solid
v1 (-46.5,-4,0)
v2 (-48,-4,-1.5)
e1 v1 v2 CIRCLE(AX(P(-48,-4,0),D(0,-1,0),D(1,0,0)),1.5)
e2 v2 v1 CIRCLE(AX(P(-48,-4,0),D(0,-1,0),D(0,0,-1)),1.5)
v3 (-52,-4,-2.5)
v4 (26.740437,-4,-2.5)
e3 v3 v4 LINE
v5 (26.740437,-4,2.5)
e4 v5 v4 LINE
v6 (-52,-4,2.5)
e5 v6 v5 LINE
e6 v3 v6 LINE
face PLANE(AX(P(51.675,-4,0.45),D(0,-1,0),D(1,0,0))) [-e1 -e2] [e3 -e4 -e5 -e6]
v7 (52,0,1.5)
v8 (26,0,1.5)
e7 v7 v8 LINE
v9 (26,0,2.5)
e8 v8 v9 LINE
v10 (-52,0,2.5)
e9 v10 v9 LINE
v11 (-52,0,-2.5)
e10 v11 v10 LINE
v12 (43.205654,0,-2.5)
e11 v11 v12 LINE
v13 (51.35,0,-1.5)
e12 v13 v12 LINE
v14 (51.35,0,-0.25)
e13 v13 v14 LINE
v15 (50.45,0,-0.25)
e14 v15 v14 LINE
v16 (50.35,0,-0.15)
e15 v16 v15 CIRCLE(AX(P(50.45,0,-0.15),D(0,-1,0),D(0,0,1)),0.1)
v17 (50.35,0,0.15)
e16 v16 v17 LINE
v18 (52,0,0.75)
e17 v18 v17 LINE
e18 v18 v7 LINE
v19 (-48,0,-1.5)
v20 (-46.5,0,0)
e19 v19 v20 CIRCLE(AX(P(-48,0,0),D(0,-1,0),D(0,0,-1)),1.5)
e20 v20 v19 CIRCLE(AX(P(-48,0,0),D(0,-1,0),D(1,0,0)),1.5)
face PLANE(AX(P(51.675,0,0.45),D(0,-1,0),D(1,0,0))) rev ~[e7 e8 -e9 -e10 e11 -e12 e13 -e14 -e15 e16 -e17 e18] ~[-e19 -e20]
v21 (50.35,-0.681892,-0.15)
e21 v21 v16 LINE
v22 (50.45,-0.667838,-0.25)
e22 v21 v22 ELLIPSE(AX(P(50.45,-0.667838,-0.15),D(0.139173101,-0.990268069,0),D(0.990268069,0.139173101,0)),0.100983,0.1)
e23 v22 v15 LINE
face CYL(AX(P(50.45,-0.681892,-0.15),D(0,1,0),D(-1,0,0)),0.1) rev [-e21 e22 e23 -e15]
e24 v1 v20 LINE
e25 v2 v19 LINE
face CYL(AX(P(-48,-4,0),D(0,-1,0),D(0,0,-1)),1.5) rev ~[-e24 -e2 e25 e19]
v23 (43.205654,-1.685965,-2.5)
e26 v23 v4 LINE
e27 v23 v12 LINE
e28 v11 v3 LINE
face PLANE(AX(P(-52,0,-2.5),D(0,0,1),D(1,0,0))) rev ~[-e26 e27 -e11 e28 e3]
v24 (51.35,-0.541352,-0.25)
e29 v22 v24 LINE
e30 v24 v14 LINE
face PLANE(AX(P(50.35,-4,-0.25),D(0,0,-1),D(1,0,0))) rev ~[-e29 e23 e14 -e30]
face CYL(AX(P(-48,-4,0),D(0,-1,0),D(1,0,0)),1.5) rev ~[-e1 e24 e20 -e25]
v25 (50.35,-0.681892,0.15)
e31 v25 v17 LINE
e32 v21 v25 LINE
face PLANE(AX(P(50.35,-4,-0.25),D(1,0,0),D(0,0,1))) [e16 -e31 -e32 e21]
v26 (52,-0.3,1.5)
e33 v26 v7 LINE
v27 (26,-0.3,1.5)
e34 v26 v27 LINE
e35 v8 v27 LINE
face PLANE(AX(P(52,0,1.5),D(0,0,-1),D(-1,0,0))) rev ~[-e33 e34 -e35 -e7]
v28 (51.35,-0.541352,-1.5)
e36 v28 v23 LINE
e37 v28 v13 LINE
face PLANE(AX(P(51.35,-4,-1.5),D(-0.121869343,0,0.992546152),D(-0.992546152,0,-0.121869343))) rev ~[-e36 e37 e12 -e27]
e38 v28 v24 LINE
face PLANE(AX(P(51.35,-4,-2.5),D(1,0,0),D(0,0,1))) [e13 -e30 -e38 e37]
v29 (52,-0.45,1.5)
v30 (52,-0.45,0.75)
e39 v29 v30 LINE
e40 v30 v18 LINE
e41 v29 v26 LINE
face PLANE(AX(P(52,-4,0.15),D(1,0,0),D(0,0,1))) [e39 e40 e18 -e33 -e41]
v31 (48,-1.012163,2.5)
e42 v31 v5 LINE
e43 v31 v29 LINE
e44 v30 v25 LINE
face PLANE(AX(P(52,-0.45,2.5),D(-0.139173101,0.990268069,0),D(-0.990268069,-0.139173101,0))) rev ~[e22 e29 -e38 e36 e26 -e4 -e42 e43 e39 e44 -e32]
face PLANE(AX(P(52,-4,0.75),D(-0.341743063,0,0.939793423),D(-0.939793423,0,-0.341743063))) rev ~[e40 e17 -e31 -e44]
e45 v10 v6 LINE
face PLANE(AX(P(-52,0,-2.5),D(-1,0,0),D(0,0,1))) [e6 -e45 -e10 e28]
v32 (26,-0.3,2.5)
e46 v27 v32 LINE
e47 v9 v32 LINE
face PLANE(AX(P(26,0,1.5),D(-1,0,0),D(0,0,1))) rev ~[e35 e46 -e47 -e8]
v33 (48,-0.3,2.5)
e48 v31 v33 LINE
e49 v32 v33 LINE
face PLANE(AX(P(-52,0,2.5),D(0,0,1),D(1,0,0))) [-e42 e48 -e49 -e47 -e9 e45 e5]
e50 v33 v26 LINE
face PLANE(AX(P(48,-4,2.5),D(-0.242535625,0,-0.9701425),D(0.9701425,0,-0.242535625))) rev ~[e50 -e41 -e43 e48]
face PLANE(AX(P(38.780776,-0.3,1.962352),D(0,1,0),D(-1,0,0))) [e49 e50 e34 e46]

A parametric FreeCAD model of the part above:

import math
import FreeCAD as App
import Part
import Sketcher
from FreeCAD import Vector
Q = App.Units.Quantity


def edges_at(feature, points):
    """Names of the edges that pass closest to the given points."""
    edges = feature.Shape.Edges
    near = lambda p: min(range(len(edges)), key=lambda i: edges[i].distToShape(Part.Vertex(*p))[0])
    return sorted({f"Edge{near(p) + 1}" for p in points})


def add_polygon(sketch, points):
    """Adds a closed chain of lines whose ends are joined by coincident constraints."""
    first, n = sketch.GeometryCount, len(points)
    for a, b in zip(points, points[1:] + points[:1]):
        sketch.addGeometry(Part.LineSegment(App.Vector(*a, 0), App.Vector(*b, 0)), False)
    for i in range(n):
        sketch.addConstraint(Sketcher.Constraint("Coincident", first + i, 2, first + (i + 1) % n, 1))

doc = App.newDocument("Part")
body = doc.addObject("PartDesign::Body", "Body")

sketch1 = doc.addObject("Sketcher::SketchObject", "Sketch")
body.addObject(sketch1)
sketch1.AttachmentSupport = (doc.XZ_Plane, [""])
sketch1.MapMode = "FlatFace"
add_polygon(sketch1, [(-52, 2), (-52, -2), (52, -2), (52, 2)])
sketch1.addConstraint(Sketcher.Constraint("Vertical", 0))
sketch1.addConstraint(Sketcher.Constraint("Horizontal", 1))
sketch1.addConstraint(Sketcher.Constraint("Vertical", 2))
sketch1.addConstraint(Sketcher.Constraint("Horizontal", 3))
sketch1.addConstraint(Sketcher.Constraint("Symmetric", 0, 2, 2, 2, -1, 1))
sketch1.addConstraint(Sketcher.Constraint("DistanceX", 1, 1, 1, 2, Q("104 mm")))
sketch1.addConstraint(Sketcher.Constraint("DistanceY", 0, 2, 0, 1, Q("5 mm")))
pad1 = doc.addObject("PartDesign::Pad", "Pad")
body.addObject(pad1)
pad1.Profile = sketch1
pad1.Length = 4

sketch2 = doc.addObject("Sketcher::SketchObject", "Sketch001")
body.addObject(sketch2)
sketch2.AttachmentSupport = (doc.XZ_Plane, [""])
sketch2.MapMode = "FlatFace"
sketch2.AttachmentOffset = App.Placement(Vector(0, 0, 4), App.Rotation())
sketch2.addGeometry(Part.ArcOfCircle(Part.Circle(Vector(-48, 0, 0), Vector(0, 0, 1), 1.5), math.radians(-90), math.radians(0)), False)
sketch2.addGeometry(Part.ArcOfCircle(Part.Circle(Vector(-48, 0, 0), Vector(0, 0, 1), 1.5), math.radians(0), math.radians(270)), False)
sketch2.addConstraint(Sketcher.Constraint("Tangent", 0, 1, 1, 2))
sketch2.addConstraint(Sketcher.Constraint("Coincident", 1, 1, 0, 2))
sketch2.addConstraint(Sketcher.Constraint("PointOnObject", 0, 3, -1))
sketch2.addConstraint(Sketcher.Constraint("PointOnObject", 1, 1, -1))
sketch2.addConstraint(Sketcher.Constraint("Vertical", 1, 3, 0, 1))
sketch2.addConstraint(Sketcher.Constraint("Radius", 0, Q("1.5 mm")))
sketch2.addConstraint(Sketcher.Constraint("DistanceX", 0, 3, -1, 1, Q("48 mm")))
pocket1 = doc.addObject("PartDesign::Pocket", "Pocket")
body.addObject(pocket1)
pocket1.Profile = sketch2
pocket1.Type = "ThroughAll"

sketch3 = doc.addObject("Sketcher::SketchObject", "Sketch002")
body.addObject(sketch3)
sketch3.AttachmentSupport = (doc.XZ_Plane, [""])
sketch3.MapMode = "FlatFace"
sketch3.AttachmentOffset = App.Placement(Vector(0, 0, 4), App.Rotation())
add_polygon(sketch3, [(51.4, 0.8), (51.4, -2.5), (52, -2.5), (52, 0.8)])
sketch3.addConstraint(Sketcher.Constraint("Vertical", 0))
sketch3.addConstraint(Sketcher.Constraint("Horizontal", 1))
sketch3.addConstraint(Sketcher.Constraint("Vertical", 2))
sketch3.addConstraint(Sketcher.Constraint("Horizontal", 3))
sketch3.addConstraint(Sketcher.Constraint("DistanceX", -1, 1, 1, 2, Q("52 mm")))
sketch3.addConstraint(Sketcher.Constraint("DistanceX", 1, 1, 1, 2, Q("0.65 mm")))
sketch3.addConstraint(Sketcher.Constraint("DistanceY", 0, 2, 0, 1, Q("3.25 mm")))
sketch3.addConstraint(Sketcher.Constraint("DistanceY", 0, 2, -1, 1, Q("2.5 mm")))
pocket2 = doc.addObject("PartDesign::Pocket", "Pocket001")
body.addObject(pocket2)
pocket2.Profile = sketch3
pocket2.Type = "ThroughAll"

sketch4 = doc.addObject("Sketcher::SketchObject", "Sketch003")
body.addObject(sketch4)
sketch4.AttachmentSupport = (doc.XZ_Plane, [""])
sketch4.MapMode = "FlatFace"
sketch4.AttachmentOffset = App.Placement(Vector(0, 0, 4), App.Rotation())
add_polygon(sketch4, [(43.2, -2.5), (51.4, -2.5), (51.4, -1.5)])
sketch4.addConstraint(Sketcher.Constraint("Horizontal", 0))
sketch4.addConstraint(Sketcher.Constraint("Vertical", 1))
sketch4.addConstraint(Sketcher.Constraint("DistanceY", 1, 1, 1, 2, Q("1 mm")))
sketch4.addConstraint(Sketcher.Constraint("Angle", 2, Q("-173 deg")))
sketch4.addConstraint(Sketcher.Constraint("DistanceY", 0, 2, -1, 1, Q("2.5 mm")))
sketch4.addConstraint(Sketcher.Constraint("DistanceX", -1, 1, 0, 2, Q("51.35 mm")))
pocket3 = doc.addObject("PartDesign::Pocket", "Pocket002")
body.addObject(pocket3)
pocket3.Profile = sketch4
pocket3.Type = "ThroughAll"

sketch5 = doc.addObject("Sketcher::SketchObject", "Sketch004")
body.addObject(sketch5)
sketch5.AttachmentSupport = (doc.XZ_Plane, [""])
sketch5.MapMode = "FlatFace"
sketch5.AttachmentOffset = App.Placement(Vector(0, 0, 4), App.Rotation())
add_polygon(sketch5, [(50.35, 0.15), (50.35, -0.25), (51.35, -0.25), (51.35, 0.15)])
sketch5.addConstraint(Sketcher.Constraint("Vertical", 0))
sketch5.addConstraint(Sketcher.Constraint("Horizontal", 1))
sketch5.addConstraint(Sketcher.Constraint("Vertical", 2))
sketch5.addConstraint(Sketcher.Constraint("Horizontal", 3))
sketch5.addConstraint(Sketcher.Constraint("DistanceX", 1, 1, 1, 2, Q("1 mm")))
sketch5.addConstraint(Sketcher.Constraint("DistanceY", 0, 2, 0, 1, Q("0.4 mm")))
sketch5.addConstraint(Sketcher.Constraint("DistanceX", -1, 1, 0, 2, Q("50.35 mm")))
sketch5.addConstraint(Sketcher.Constraint("DistanceY", 0, 2, -1, 1, Q("0.25 mm")))
pocket4 = doc.addObject("PartDesign::Pocket", "Pocket003")
body.addObject(pocket4)
pocket4.Profile = sketch5
pocket4.Type = "ThroughAll"

sketch6 = doc.addObject("Sketcher::SketchObject", "Sketch005")
body.addObject(sketch6)
sketch6.AttachmentSupport = (doc.XZ_Plane, [""])
sketch6.MapMode = "FlatFace"
sketch6.AttachmentOffset = App.Placement(Vector(0, 0, 4), App.Rotation())
add_polygon(sketch6, [(51.4, 0.8), (51.4, 0.1), (52, 0.1), (52, 0.8)])
sketch6.addConstraint(Sketcher.Constraint("Vertical", 0))
sketch6.addConstraint(Sketcher.Constraint("Horizontal", 1))
sketch6.addConstraint(Sketcher.Constraint("Vertical", 2))
sketch6.addConstraint(Sketcher.Constraint("Horizontal", 3))
sketch6.addConstraint(Sketcher.Constraint("DistanceY", 0, 2, 0, 1, Q("0.6 mm")))
sketch6.addConstraint(Sketcher.Constraint("DistanceX", -1, 1, 1, 2, Q("52 mm")))
sketch6.addConstraint(Sketcher.Constraint("DistanceX", 1, 1, 1, 2, Q("0.65 mm")))
sketch6.addConstraint(Sketcher.Constraint("DistanceY", -1, 1, 0, 2, Q("0.15 mm")))
pad2 = doc.addObject("PartDesign::Pad", "Pad001")
body.addObject(pad2)
pad2.Profile = sketch6
pad2.Length = 4
pad2.Reversed = True

sketch7 = doc.addObject("Sketcher::SketchObject", "Sketch006")
body.addObject(sketch7)
sketch7.AttachmentSupport = (doc.XZ_Plane, [""])
sketch7.MapMode = "FlatFace"
sketch7.AttachmentOffset = App.Placement(Vector(0, 0, 4), App.Rotation())
add_polygon(sketch7, [(52, 0.1), (52, 0.8), (50.4, 0.1)])
sketch7.addConstraint(Sketcher.Constraint("Vertical", 0))
sketch7.addConstraint(Sketcher.Constraint("Horizontal", 2))
sketch7.addConstraint(Sketcher.Constraint("DistanceY", 0, 1, 0, 2, Q("0.6 mm")))
sketch7.addConstraint(Sketcher.Constraint("DistanceX", -1, 1, 0, 2, Q("52 mm")))
sketch7.addConstraint(Sketcher.Constraint("DistanceX", 2, 1, 2, 2, Q("1.65 mm")))
sketch7.addConstraint(Sketcher.Constraint("DistanceY", -1, 1, 0, 2, Q("0.75 mm")))
pocket5 = doc.addObject("PartDesign::Pocket", "Pocket004")
body.addObject(pocket5)
pocket5.Profile = sketch7
pocket5.Type = "ThroughAll"

sketch8 = doc.addObject("Sketcher::SketchObject", "Sketch007")
body.addObject(sketch8)
sketch8.AttachmentSupport = (doc.XZ_Plane, [""])
sketch8.MapMode = "FlatFace"
sketch8.AttachmentOffset = App.Placement(Vector(0, 0, 4), App.Rotation())
add_polygon(sketch8, [(52, 1.5), (52, 2.5), (48, 2.5)])
sketch8.addConstraint(Sketcher.Constraint("Vertical", 0))
sketch8.addConstraint(Sketcher.Constraint("Horizontal", 1))
sketch8.addConstraint(Sketcher.Constraint("DistanceX", 1, 2, 1, 1, Q("4 mm")))
sketch8.addConstraint(Sketcher.Constraint("DistanceY", 0, 1, 0, 2, Q("1 mm")))
sketch8.addConstraint(Sketcher.Constraint("DistanceX", -1, 1, 0, 2, Q("52 mm")))
sketch8.addConstraint(Sketcher.Constraint("DistanceY", -1, 1, 0, 2, Q("2.5 mm")))
pocket6 = doc.addObject("PartDesign::Pocket", "Pocket005")
body.addObject(pocket6)
pocket6.Profile = sketch8
pocket6.Type = "ThroughAll"

sketch9 = doc.addObject("Sketcher::SketchObject", "Sketch008")
body.addObject(sketch9)
sketch9.AttachmentSupport = (doc.XY_Plane, [""])
sketch9.MapMode = "FlatFace"
sketch9.AttachmentOffset = App.Placement(Vector(0, 0, 2.5), App.Rotation())
add_polygon(sketch9, [(52, -4), (52, -0.5), (26.7, -4)])
sketch9.addConstraint(Sketcher.Constraint("Vertical", 0))
sketch9.addConstraint(Sketcher.Constraint("Horizontal", 2))
sketch9.addConstraint(Sketcher.Constraint("Angle", 1, Q("-172 deg")))
sketch9.addConstraint(Sketcher.Constraint("DistanceX", -1, 1, 0, 2, Q("52 mm")))
sketch9.addConstraint(Sketcher.Constraint("DistanceY", 1, 2, -1, 1, Q("4 mm")))
sketch9.addConstraint(Sketcher.Constraint("DistanceY", 0, 1, 0, 2, Q("3.55 mm")))
pocket7 = doc.addObject("PartDesign::Pocket", "Pocket006")
body.addObject(pocket7)
pocket7.Profile = sketch9
pocket7.Type = "ThroughAll"
doc.recompute()

fillet = doc.addObject("PartDesign::Fillet", "Fillet")
body.addObject(fillet)
fillet.Base = (pocket7, edges_at(pocket7, [(50.35, -0.341, -0.25)]))
fillet.Radius = 0.1

sketch10 = doc.addObject("Sketcher::SketchObject", "Sketch009")
body.addObject(sketch10)
sketch10.AttachmentSupport = (doc.XZ_Plane, [""])
sketch10.MapMode = "FlatFace"
add_polygon(sketch10, [(48, 2.5), (52, 1.5), (26, 1.5), (26, 2.5)])
sketch10.addConstraint(Sketcher.Constraint("Horizontal", 1))
sketch10.addConstraint(Sketcher.Constraint("Vertical", 2))
sketch10.addConstraint(Sketcher.Constraint("Horizontal", 3))
sketch10.addConstraint(Sketcher.Constraint("DistanceX", 1, 2, 1, 1, Q("26 mm")))
sketch10.addConstraint(Sketcher.Constraint("DistanceX", 3, 1, 3, 2, Q("22 mm")))
sketch10.addConstraint(Sketcher.Constraint("DistanceY", 2, 1, 2, 2, Q("1 mm")))
sketch10.addConstraint(Sketcher.Constraint("DistanceX", -1, 1, 0, 2, Q("52 mm")))
sketch10.addConstraint(Sketcher.Constraint("DistanceY", -1, 1, 0, 2, Q("1.5 mm")))
pocket8 = doc.addObject("PartDesign::Pocket", "Pocket007")
body.addObject(pocket8)
pocket8.Profile = sketch10
pocket8.Length = 0.3
pocket8.Reversed = True

doc.recompute()
